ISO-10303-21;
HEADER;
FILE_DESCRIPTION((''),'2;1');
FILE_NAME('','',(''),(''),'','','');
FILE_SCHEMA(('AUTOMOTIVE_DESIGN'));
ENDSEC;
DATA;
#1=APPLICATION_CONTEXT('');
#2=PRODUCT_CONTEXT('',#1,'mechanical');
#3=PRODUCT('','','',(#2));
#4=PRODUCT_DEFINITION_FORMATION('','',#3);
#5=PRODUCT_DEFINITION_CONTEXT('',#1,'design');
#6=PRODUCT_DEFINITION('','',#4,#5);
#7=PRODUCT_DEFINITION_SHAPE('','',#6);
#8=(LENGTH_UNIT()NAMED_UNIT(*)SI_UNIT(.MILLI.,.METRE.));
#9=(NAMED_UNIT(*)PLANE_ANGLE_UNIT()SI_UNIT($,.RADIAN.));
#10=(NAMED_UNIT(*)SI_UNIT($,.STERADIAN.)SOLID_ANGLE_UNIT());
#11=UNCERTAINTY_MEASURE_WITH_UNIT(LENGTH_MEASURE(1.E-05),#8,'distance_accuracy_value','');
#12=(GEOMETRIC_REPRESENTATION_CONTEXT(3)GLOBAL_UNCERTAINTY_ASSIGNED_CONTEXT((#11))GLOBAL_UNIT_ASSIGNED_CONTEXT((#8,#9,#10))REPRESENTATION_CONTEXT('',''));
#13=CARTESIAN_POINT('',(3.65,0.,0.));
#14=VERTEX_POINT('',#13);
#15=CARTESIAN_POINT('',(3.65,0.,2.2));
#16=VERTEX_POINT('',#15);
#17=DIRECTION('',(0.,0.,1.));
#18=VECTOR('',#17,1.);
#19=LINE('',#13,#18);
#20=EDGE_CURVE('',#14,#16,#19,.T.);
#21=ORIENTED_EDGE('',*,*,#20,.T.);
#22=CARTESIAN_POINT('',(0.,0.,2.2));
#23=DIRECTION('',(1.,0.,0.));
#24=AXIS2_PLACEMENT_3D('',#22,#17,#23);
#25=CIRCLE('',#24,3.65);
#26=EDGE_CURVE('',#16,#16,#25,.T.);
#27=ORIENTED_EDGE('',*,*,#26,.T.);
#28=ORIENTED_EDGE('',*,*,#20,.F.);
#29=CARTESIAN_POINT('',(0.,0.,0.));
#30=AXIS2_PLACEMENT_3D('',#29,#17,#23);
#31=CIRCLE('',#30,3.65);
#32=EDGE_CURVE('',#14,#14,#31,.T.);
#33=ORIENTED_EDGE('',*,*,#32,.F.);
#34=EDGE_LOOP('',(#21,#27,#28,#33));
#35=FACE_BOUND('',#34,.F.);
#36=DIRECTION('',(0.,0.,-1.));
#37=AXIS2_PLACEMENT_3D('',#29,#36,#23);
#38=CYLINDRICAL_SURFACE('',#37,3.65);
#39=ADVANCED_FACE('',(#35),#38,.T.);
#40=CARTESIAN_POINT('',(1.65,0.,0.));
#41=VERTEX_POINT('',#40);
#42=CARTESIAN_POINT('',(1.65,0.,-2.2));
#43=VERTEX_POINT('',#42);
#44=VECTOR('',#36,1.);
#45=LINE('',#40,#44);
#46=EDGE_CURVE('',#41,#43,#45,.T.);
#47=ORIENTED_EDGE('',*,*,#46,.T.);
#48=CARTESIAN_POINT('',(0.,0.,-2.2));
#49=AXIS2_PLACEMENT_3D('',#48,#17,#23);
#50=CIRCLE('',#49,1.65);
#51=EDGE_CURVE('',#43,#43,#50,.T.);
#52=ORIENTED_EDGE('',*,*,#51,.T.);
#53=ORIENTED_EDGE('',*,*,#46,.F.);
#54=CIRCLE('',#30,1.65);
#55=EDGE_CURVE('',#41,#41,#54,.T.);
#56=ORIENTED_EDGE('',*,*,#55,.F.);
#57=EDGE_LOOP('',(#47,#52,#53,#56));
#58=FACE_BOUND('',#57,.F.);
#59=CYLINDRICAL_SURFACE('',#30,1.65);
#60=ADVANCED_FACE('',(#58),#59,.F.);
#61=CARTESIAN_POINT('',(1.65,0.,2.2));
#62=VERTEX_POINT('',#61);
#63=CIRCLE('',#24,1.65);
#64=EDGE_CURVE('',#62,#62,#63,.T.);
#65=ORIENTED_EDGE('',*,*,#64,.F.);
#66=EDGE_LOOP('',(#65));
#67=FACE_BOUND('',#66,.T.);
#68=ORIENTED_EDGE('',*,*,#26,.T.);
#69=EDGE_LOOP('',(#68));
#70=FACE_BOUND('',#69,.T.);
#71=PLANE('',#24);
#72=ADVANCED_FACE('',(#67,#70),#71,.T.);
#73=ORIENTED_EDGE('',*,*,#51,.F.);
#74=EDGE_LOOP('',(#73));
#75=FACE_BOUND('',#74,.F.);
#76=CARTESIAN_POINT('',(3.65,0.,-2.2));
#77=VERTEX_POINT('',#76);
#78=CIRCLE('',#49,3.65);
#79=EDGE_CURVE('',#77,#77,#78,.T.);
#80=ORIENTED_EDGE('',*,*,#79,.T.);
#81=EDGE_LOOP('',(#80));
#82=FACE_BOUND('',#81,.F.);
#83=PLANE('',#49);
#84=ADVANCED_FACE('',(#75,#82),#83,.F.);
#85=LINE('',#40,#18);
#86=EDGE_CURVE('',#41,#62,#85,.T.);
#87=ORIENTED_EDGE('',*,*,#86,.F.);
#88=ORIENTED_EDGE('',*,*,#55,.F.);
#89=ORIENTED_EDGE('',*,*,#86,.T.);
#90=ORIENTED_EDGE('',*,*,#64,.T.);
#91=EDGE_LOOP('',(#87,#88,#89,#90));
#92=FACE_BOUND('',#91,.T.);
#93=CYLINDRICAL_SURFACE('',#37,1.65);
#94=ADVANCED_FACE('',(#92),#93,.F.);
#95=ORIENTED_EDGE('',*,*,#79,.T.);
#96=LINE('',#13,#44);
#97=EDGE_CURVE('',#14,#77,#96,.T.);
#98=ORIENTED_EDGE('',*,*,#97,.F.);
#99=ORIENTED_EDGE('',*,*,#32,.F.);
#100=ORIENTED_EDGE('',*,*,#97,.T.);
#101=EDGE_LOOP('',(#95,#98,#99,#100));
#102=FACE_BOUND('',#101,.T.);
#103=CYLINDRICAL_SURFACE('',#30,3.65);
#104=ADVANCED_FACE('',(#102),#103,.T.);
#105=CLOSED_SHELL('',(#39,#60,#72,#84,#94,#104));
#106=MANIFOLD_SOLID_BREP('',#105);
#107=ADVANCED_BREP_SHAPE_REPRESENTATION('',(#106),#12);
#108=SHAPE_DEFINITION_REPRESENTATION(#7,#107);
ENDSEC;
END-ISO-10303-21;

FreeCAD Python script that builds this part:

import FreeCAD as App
import Part
import Sketcher
Q = App.Units.Quantity

doc = App.newDocument("Part")
body = doc.addObject("PartDesign::Body", "Body")

sketch1 = body.newObject("Sketcher::SketchObject", "Sketch")
sketch1.AttachmentSupport = (doc.getObject("XY_Plane"), [""])
sketch1.MapMode = "FlatFace"
sketch1.addGeometry([
    Part.Circle(App.Vector(0, 0, 0), App.Vector(0, 0, 1), 3.65),
    Part.Circle(App.Vector(0, 0, 0), App.Vector(0, 0, 1), 1.65),
], False)
sketch1.addConstraint([
    Sketcher.Constraint("Coincident", 0, 3, -1, 1),
    Sketcher.Constraint("Coincident", 1, 3, -1, 1),
    Sketcher.Constraint("Diameter", 0, Q("7.3 mm")),
    Sketcher.Constraint("Diameter", 1, Q("3.3 mm")),
])
pad1 = body.newObject("PartDesign::Pad", "Pad")
pad1.Profile = sketch1
pad1.Length = 4.4
pad1.Midplane = True

doc.recompute()
